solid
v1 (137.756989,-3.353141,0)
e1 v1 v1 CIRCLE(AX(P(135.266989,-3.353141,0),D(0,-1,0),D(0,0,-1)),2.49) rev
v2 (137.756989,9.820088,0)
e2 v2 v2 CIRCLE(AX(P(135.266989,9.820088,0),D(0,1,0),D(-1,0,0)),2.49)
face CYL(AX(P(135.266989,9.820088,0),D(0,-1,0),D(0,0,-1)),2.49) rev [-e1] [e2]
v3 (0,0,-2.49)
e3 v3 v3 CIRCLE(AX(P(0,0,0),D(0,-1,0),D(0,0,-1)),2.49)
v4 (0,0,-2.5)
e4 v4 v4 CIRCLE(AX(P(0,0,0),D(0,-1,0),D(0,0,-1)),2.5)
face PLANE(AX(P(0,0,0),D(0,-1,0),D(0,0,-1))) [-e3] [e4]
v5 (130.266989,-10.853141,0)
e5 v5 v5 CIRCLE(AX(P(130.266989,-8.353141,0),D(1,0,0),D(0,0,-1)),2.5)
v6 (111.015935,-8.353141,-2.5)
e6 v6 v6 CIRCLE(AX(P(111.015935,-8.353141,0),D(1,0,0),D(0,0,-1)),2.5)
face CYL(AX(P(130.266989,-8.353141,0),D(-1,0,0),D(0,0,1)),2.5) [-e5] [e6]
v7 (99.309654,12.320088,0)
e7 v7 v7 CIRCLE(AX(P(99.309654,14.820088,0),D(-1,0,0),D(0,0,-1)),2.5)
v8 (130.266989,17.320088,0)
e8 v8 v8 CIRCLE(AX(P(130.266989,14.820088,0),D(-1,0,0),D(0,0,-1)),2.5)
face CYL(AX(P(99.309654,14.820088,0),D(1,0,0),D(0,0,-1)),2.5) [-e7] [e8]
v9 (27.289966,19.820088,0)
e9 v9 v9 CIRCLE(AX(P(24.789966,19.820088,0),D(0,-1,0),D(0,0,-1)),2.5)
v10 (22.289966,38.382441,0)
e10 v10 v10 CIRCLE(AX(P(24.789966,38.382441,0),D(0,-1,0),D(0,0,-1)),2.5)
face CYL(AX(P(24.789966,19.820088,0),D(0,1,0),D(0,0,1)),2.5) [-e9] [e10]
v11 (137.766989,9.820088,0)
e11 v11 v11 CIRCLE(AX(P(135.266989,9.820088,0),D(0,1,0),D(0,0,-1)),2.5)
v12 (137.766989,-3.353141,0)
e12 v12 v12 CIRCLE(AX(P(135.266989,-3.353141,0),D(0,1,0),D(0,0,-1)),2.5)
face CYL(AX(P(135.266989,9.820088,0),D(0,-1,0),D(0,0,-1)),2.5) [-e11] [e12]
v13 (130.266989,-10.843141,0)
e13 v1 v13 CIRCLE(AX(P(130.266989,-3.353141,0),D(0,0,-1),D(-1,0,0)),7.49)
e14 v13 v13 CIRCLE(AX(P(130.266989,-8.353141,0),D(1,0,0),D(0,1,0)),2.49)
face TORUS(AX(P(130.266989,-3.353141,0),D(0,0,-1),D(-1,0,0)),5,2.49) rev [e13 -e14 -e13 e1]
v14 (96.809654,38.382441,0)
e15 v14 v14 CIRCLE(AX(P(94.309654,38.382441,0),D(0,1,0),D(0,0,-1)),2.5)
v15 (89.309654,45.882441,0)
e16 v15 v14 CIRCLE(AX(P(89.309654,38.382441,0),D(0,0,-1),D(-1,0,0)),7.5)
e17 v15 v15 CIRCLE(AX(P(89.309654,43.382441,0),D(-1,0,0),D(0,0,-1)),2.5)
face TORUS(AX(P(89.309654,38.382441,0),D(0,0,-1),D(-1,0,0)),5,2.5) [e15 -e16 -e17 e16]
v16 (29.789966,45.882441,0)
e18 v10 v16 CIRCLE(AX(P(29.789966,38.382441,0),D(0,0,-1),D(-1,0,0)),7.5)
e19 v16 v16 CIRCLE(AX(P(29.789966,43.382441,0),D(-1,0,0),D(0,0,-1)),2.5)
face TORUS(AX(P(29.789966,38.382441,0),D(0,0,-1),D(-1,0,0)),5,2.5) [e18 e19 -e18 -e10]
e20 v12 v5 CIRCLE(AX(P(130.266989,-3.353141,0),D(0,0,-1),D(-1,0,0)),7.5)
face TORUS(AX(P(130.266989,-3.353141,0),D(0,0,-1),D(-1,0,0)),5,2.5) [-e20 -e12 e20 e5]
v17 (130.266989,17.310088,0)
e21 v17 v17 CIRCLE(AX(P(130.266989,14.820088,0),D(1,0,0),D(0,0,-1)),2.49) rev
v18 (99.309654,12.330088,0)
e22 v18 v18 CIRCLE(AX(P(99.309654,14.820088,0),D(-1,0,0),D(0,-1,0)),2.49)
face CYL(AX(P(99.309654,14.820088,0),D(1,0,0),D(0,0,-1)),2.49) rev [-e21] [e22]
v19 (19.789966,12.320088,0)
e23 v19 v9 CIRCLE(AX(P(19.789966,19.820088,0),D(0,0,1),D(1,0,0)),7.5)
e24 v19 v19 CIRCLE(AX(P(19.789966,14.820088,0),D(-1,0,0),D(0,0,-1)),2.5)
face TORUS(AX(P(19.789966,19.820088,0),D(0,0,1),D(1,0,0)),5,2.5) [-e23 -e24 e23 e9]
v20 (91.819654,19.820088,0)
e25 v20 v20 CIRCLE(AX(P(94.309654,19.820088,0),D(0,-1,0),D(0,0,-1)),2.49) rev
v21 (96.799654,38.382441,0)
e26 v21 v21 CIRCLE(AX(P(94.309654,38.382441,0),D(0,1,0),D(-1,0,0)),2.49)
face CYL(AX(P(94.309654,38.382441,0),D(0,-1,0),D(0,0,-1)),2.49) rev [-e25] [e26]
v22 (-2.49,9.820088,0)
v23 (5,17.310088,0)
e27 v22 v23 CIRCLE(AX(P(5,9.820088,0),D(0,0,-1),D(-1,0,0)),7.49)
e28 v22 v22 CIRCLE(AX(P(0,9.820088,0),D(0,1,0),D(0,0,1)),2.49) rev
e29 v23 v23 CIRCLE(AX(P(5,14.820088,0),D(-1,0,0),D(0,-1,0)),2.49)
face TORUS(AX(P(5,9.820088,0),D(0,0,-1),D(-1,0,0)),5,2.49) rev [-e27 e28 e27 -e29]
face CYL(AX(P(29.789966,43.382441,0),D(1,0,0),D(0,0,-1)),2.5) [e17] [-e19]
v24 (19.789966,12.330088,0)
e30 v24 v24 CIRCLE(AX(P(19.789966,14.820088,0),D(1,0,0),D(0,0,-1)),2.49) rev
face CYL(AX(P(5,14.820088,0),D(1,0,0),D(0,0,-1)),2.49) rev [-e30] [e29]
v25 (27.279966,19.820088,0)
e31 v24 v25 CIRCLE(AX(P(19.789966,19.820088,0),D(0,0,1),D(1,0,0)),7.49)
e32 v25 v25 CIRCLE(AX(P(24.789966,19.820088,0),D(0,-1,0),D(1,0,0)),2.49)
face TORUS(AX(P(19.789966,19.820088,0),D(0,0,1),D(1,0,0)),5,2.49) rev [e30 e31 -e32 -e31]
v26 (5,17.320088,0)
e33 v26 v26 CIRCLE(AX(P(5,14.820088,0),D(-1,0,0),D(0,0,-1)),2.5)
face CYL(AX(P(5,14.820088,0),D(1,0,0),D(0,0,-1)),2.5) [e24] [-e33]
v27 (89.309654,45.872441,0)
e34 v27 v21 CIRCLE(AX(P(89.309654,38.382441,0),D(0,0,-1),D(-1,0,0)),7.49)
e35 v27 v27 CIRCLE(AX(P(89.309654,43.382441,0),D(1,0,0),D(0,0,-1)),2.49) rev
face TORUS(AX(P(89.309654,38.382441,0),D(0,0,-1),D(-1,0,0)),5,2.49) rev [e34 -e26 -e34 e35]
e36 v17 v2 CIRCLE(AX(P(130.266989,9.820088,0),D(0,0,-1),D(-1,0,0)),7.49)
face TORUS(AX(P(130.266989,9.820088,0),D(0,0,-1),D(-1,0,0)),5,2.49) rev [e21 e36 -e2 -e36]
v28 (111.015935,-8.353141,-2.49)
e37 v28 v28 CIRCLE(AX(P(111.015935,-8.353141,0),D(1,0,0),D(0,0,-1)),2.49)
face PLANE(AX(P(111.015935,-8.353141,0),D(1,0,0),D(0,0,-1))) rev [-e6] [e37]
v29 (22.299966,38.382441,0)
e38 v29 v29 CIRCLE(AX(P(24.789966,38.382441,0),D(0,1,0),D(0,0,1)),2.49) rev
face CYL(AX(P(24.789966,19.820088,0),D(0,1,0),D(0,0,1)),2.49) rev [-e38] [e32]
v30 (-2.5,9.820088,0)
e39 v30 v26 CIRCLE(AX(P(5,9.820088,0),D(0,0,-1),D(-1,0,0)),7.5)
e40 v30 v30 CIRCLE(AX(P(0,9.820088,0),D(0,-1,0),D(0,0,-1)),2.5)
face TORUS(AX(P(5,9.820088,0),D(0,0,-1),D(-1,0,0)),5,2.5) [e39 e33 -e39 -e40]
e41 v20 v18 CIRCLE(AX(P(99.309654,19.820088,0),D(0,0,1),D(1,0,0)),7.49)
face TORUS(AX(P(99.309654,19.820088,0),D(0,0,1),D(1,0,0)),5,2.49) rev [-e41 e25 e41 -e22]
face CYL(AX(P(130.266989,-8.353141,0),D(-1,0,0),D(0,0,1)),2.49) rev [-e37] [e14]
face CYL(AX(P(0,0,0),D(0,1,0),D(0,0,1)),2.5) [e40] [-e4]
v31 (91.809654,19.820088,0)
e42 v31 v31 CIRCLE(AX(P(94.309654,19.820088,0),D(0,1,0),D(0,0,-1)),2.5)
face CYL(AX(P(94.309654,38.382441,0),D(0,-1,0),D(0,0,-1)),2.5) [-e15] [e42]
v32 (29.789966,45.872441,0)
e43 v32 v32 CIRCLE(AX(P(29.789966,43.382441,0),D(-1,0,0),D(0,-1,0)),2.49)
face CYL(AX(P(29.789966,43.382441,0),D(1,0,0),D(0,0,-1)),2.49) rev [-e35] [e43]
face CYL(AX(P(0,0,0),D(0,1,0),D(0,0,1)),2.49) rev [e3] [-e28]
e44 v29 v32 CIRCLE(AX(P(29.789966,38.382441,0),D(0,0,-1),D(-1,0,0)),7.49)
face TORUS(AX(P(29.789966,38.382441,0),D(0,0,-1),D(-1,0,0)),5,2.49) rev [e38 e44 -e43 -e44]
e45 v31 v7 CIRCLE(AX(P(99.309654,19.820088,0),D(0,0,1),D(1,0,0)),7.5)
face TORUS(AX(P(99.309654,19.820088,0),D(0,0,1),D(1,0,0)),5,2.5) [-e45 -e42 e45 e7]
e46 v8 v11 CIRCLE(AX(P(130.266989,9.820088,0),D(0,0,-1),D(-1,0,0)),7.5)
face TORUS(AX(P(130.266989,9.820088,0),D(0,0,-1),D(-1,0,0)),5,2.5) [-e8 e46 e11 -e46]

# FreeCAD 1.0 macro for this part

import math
import FreeCAD as App
import Part
import Sketcher
from FreeCAD import Vector
Q = App.Units.Quantity


def faces_at(feature, points):
    """Names of the faces that lie closest to the given points."""
    faces = feature.Shape.Faces
    near = lambda p: min(range(len(faces)), key=lambda i: faces[i].distToShape(Part.Vertex(*p))[0])
    return sorted({f"Face{near(p) + 1}" for p in points})

doc = App.newDocument("Part")
body = doc.addObject("PartDesign::Body", "Body")

sketch1 = body.newObject("Sketcher::SketchObject", "Sketch")
sketch1.AttachmentSupport = (doc.getObject("XZ_Plane"), [""])
sketch1.MapMode = "FlatFace"
sketch1.addGeometry(Part.Circle(Vector(0, 0, 0), Vector(0, 0, 1), 2.5), False)
sketch1.addConstraint([
    Sketcher.Constraint("Coincident", 0, 3, -1, 1),
    Sketcher.Constraint("Diameter", 0, Q("5 mm")),
])

sketch2 = body.newObject("Sketcher::SketchObject", "Sketch001")
sketch2.AttachmentSupport = (doc.getObject("XY_Plane"), [""])
sketch2.MapMode = "FlatFace"
sketch2.addGeometry([
    Part.LineSegment(Vector(0, 0, 0), Vector(0, 10, 0)),
    Part.ArcOfCircle(Part.Circle(Vector(5, 10, 0), Vector(0, 0, 1), 5), math.radians(90), math.radians(180)),
    Part.LineSegment(Vector(5, 15, 0), Vector(20, 15, 0)),
    Part.ArcOfCircle(Part.Circle(Vector(20, 20, 0), Vector(0, 0, 1), 5), math.radians(-90), math.radians(0)),
    Part.LineSegment(Vector(25, 20, 0), Vector(25, 38, 0)),
    Part.ArcOfCircle(Part.Circle(Vector(30, 38, 0), Vector(0, 0, 1), 5), math.radians(90), math.radians(180)),
    Part.LineSegment(Vector(30, 43, 0), Vector(89, 43, 0)),
    Part.ArcOfCircle(Part.Circle(Vector(89, 38, 0), Vector(0, 0, 1), 5), math.radians(0), math.radians(90)),
    Part.LineSegment(Vector(94, 38, 0), Vector(94, 20, 0)),
    Part.ArcOfCircle(Part.Circle(Vector(99, 20, 0), Vector(0, 0, 1), 5), math.radians(180), math.radians(270)),
    Part.LineSegment(Vector(99, 15, 0), Vector(130, 15, 0)),
    Part.ArcOfCircle(Part.Circle(Vector(130, 10, 0), Vector(0, 0, 1), 5), math.radians(0), math.radians(90)),
    Part.LineSegment(Vector(135, 10, 0), Vector(135, -3, 0)),
    Part.ArcOfCircle(Part.Circle(Vector(130, -3, 0), Vector(0, 0, 1), 5), math.radians(-90), math.radians(0)),
    Part.LineSegment(Vector(130, -8, 0), Vector(111, -8, 0)),
], False)
sketch2.addConstraint([
    Sketcher.Constraint("Tangent", 0, 2, 1, 2),
    Sketcher.Constraint("Tangent", 1, 1, 2, 1),
    Sketcher.Constraint("Tangent", 2, 2, 3, 1),
    Sketcher.Constraint("Tangent", 3, 2, 4, 1),
    Sketcher.Constraint("Tangent", 4, 2, 5, 2),
    Sketcher.Constraint("Tangent", 5, 1, 6, 1),
    Sketcher.Constraint("Tangent", 6, 2, 7, 2),
    Sketcher.Constraint("Tangent", 7, 1, 8, 1),
    Sketcher.Constraint("Tangent", 8, 2, 9, 1),
    Sketcher.Constraint("Tangent", 9, 2, 10, 1),
    Sketcher.Constraint("Tangent", 10, 2, 11, 2),
    Sketcher.Constraint("Tangent", 11, 1, 12, 1),
    Sketcher.Constraint("Tangent", 12, 2, 13, 2),
    Sketcher.Constraint("Tangent", 13, 1, 14, 1),
    Sketcher.Constraint("Vertical", 0),
    Sketcher.Constraint("Horizontal", 2),
    Sketcher.Constraint("Vertical", 4),
    Sketcher.Constraint("Horizontal", 6),
    Sketcher.Constraint("Vertical", 8),
    Sketcher.Constraint("Horizontal", 10),
    Sketcher.Constraint("Vertical", 12),
    Sketcher.Constraint("Horizontal", 14),
    Sketcher.Constraint("Coincident", 0, 1, -1, 1),
    Sketcher.Constraint("Equal", 1, 3),
    Sketcher.Constraint("Equal", 3, 5),
    Sketcher.Constraint("Equal", 5, 7),
    Sketcher.Constraint("Equal", 7, 9),
    Sketcher.Constraint("Equal", 9, 11),
    Sketcher.Constraint("Equal", 11, 13),
    Sketcher.Constraint("Horizontal", 3, 3, 9, 3),
    Sketcher.Constraint("Radius", 1, Q("5 mm")),
    Sketcher.Constraint("DistanceY", 0, 1, 0, 2, Q("9.820088 mm")),
    Sketcher.Constraint("DistanceY", 12, 2, 12, 1, Q("13.173229 mm")),
    Sketcher.Constraint("DistanceX", 2, 1, 2, 2, Q("14.789966 mm")),
    Sketcher.Constraint("DistanceX", 6, 1, 6, 2, Q("59.519688 mm")),
    Sketcher.Constraint("DistanceX", 10, 1, 10, 2, Q("30.957335 mm")),
    Sketcher.Constraint("DistanceX", 14, 2, 14, 1, Q("19.251054 mm")),
    Sketcher.Constraint("DistanceY", 4, 1, 4, 2, Q("18.562352 mm")),
])
doc.recompute()

additivepipe = body.newObject("PartDesign::AdditivePipe", "AdditivePipe")
additivepipe.Profile = sketch1
additivepipe.Spine = (sketch2, ["Edge1", "Edge2", "Edge3", "Edge4", "Edge5", "Edge6", "Edge7", "Edge8", "Edge9", "Edge10", "Edge11", "Edge12", "Edge13", "Edge14", "Edge15"])
doc.recompute()

thickness = body.newObject("PartDesign::Thickness", "Thickness")
thickness.Base = (additivepipe, faces_at(additivepipe, [(111.016, -8.353, 0), (0, 0, 0)]))
thickness.Value = 0.01
thickness.Reversed = True
thickness.Join = "Intersection"

doc.recompute()
